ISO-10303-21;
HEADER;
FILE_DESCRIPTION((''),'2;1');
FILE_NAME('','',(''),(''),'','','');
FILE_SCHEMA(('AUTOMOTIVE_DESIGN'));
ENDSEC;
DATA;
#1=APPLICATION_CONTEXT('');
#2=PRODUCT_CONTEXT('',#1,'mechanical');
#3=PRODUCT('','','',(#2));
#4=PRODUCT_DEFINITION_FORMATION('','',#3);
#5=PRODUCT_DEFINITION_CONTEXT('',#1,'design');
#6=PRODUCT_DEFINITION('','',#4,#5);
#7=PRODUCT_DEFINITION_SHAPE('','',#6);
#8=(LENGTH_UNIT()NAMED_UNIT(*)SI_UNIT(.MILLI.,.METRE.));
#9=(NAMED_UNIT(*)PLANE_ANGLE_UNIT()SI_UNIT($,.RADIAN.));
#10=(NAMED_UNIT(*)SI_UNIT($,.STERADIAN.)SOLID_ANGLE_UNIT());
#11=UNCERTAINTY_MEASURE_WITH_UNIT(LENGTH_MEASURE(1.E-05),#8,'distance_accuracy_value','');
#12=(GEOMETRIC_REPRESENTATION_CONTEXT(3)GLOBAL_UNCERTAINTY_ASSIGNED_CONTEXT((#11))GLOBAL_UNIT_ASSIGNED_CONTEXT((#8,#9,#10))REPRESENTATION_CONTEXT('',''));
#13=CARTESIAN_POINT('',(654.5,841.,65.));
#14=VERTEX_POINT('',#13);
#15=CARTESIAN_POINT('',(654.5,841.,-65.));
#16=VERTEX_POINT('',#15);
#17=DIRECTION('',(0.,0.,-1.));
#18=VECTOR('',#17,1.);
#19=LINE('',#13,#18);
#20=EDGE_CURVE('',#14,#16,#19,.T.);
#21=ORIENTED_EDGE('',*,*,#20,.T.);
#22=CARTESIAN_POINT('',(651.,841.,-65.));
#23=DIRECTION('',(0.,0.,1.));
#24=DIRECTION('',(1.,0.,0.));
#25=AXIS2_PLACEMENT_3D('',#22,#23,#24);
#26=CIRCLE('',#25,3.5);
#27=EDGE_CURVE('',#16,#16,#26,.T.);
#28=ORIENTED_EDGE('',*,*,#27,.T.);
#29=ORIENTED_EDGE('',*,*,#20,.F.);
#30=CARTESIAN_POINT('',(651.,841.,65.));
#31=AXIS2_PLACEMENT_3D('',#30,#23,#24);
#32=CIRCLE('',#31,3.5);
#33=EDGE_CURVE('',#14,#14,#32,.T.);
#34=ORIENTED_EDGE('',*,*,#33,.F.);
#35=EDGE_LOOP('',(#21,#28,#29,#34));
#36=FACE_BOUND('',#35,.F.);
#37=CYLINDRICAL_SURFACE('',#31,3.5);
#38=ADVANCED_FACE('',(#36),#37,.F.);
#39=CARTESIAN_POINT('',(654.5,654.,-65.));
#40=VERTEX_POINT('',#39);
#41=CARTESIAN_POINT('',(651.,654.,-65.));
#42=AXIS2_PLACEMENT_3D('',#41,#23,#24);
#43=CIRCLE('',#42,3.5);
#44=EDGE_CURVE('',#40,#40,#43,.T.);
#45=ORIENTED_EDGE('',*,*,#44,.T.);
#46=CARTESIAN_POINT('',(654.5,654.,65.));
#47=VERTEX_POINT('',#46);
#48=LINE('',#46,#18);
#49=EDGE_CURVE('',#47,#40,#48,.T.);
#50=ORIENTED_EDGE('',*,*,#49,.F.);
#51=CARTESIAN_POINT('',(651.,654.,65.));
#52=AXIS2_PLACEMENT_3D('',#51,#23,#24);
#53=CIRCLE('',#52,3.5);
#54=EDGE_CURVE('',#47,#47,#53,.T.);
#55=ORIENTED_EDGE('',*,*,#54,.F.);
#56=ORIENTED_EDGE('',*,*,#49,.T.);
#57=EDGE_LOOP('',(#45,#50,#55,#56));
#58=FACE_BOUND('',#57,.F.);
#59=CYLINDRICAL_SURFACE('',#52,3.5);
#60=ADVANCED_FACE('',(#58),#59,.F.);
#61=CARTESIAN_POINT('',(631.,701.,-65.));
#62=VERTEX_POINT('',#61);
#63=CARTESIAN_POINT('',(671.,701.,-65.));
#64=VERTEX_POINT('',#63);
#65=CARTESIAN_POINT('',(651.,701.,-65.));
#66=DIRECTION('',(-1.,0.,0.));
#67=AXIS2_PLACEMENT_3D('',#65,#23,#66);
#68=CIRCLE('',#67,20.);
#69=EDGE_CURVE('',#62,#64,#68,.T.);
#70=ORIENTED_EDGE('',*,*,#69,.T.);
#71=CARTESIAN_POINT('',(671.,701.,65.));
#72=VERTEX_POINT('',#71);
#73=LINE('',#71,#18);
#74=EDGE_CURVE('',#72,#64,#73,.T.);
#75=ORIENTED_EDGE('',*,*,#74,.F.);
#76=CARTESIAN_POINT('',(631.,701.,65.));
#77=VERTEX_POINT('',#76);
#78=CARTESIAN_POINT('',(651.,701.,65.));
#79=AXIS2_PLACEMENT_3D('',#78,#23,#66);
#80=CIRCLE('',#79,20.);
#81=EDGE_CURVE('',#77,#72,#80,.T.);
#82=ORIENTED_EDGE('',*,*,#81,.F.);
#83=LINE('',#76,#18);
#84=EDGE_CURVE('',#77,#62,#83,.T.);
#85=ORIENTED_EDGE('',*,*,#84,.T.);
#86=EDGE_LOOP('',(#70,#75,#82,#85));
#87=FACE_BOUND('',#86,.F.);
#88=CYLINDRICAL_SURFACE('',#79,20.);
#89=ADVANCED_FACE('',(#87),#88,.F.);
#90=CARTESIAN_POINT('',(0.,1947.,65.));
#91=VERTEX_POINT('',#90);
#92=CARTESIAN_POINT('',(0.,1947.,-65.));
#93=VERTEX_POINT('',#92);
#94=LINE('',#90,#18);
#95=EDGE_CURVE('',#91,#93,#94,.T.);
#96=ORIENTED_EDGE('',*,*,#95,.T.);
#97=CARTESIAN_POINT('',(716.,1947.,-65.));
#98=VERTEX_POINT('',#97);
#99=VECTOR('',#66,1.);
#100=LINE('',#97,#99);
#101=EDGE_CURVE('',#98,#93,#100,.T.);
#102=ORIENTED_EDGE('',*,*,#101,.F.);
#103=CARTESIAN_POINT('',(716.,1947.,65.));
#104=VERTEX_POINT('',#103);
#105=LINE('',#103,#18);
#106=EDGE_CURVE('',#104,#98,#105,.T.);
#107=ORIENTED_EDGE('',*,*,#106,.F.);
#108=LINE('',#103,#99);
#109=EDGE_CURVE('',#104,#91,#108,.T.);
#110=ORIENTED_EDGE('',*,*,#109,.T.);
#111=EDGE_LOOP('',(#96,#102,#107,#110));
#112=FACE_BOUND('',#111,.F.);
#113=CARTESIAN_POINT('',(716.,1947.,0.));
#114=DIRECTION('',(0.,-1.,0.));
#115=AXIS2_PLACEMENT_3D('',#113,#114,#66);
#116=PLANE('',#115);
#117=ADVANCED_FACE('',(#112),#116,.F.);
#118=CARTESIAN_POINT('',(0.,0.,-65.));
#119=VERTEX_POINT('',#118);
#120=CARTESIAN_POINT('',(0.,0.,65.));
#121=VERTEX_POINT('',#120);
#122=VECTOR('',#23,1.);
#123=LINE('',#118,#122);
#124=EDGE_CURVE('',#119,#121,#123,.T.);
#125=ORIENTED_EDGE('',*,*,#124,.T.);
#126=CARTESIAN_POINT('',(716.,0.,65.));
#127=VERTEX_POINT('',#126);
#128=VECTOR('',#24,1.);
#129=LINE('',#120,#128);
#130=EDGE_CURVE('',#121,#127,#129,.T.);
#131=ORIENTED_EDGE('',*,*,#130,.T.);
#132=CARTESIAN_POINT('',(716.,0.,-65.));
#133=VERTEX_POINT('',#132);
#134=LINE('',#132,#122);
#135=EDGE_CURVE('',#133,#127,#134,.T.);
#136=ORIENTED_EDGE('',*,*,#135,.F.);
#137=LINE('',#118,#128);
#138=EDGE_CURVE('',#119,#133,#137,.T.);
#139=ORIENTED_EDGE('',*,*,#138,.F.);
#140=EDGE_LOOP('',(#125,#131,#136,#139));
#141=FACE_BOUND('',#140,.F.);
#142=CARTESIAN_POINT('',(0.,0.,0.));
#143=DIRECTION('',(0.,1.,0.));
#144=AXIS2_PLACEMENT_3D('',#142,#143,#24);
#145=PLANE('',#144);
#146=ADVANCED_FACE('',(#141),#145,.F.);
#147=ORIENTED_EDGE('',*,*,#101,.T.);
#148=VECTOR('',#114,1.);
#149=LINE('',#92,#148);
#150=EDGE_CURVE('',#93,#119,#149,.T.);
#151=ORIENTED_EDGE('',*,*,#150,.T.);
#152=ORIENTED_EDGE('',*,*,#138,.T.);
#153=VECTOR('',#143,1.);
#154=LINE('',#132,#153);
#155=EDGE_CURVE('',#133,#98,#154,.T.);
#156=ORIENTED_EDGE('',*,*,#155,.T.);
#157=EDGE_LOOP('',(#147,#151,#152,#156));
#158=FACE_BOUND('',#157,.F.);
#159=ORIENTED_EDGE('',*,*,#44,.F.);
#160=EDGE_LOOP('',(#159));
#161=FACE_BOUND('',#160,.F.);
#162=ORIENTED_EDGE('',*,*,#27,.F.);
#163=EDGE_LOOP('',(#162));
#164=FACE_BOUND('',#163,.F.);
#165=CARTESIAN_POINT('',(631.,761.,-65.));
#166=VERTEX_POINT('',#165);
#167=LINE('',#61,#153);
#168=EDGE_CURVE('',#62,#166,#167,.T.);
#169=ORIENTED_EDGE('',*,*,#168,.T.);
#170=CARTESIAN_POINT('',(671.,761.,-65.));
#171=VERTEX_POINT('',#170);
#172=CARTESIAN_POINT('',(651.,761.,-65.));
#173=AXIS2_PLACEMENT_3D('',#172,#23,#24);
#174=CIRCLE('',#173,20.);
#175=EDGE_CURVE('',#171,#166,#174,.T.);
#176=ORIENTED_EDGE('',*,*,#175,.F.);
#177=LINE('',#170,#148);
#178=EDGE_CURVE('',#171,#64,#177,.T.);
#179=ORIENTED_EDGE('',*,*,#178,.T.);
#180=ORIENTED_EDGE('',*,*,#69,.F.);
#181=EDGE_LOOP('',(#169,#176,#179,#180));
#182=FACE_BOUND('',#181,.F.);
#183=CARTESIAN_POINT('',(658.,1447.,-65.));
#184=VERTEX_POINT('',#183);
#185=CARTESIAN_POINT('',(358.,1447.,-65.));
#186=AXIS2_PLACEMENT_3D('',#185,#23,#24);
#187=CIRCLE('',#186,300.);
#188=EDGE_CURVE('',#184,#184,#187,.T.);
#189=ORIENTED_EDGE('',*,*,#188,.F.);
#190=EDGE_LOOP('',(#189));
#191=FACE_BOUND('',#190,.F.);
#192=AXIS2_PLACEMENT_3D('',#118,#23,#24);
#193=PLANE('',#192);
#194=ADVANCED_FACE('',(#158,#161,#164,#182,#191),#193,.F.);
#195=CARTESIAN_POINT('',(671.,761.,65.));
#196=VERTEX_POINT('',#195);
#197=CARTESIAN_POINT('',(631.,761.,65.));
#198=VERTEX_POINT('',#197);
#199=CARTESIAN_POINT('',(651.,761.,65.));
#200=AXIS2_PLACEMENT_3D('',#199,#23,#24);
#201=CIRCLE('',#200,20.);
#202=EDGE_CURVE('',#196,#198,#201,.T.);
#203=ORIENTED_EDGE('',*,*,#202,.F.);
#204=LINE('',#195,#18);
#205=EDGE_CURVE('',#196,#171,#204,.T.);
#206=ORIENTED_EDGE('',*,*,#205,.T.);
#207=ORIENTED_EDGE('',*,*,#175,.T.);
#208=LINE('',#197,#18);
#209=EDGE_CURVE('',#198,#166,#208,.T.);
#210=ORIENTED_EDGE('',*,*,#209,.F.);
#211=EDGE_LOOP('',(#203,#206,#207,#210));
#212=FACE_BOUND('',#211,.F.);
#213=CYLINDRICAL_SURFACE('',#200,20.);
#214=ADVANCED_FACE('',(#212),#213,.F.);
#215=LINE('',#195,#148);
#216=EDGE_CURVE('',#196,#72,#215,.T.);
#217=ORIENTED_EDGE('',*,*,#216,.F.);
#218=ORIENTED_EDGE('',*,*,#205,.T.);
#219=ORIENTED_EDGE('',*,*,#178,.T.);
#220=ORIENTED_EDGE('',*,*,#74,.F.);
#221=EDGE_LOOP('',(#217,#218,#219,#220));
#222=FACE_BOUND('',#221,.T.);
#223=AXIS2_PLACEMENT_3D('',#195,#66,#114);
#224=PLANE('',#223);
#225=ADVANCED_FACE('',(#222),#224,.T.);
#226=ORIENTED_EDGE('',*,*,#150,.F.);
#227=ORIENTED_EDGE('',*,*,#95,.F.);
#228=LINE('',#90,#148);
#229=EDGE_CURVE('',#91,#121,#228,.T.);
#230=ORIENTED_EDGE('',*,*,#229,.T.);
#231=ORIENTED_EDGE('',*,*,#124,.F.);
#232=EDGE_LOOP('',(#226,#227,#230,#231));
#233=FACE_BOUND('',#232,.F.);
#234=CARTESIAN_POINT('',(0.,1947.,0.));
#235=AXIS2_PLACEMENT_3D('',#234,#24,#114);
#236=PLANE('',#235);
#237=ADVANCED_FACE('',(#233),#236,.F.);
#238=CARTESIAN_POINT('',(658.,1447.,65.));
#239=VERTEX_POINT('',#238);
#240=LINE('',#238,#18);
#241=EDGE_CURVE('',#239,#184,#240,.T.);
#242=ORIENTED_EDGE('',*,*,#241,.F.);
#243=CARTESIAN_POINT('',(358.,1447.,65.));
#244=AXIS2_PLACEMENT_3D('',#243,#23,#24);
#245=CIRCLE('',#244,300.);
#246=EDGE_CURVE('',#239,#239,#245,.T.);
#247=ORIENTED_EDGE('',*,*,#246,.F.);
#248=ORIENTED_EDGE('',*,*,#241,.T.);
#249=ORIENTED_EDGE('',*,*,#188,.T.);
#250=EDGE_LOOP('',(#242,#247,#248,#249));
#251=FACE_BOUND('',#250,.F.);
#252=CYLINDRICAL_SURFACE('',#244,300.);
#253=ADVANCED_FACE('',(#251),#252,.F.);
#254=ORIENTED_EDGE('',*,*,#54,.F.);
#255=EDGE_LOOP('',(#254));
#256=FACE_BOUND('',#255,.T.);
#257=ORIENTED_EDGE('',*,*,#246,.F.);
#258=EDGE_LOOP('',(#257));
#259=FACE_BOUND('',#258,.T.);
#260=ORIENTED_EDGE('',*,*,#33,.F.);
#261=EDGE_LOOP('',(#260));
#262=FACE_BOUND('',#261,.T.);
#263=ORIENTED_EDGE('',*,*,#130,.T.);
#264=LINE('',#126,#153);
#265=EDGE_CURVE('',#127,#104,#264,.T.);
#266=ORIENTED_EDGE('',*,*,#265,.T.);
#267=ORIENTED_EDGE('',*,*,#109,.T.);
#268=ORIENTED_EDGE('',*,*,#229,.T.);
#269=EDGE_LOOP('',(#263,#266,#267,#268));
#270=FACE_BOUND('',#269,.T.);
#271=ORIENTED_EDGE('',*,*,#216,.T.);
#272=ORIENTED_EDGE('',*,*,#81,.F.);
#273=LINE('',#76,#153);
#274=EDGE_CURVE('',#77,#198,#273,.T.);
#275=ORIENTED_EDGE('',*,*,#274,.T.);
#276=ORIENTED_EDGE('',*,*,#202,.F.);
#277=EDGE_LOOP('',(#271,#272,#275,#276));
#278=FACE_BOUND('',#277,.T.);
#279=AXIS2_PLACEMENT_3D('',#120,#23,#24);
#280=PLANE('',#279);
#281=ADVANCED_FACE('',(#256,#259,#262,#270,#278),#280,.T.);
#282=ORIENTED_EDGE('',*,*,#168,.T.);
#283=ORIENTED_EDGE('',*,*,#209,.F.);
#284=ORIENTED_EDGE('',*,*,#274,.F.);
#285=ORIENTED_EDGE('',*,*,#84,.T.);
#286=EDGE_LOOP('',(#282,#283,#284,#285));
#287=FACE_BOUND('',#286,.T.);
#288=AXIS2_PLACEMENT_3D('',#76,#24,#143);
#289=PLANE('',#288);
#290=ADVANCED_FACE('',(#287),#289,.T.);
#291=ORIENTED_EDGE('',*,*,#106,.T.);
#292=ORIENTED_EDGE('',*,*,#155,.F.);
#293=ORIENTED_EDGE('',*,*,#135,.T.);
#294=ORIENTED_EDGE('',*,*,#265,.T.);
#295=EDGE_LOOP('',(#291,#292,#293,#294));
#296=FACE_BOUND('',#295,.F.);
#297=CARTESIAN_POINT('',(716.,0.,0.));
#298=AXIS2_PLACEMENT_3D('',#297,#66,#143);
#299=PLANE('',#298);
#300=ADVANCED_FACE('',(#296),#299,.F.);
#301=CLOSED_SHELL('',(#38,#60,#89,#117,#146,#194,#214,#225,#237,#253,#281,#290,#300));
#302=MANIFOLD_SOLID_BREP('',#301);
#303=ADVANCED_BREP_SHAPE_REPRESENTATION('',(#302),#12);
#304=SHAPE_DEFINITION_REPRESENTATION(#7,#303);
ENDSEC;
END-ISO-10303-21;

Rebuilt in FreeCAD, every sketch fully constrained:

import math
import FreeCAD as App
import Part
import Sketcher

V = App.Vector
Q = App.Units.Quantity


def add_polygon(sketch, points):
    """Adds a closed chain of lines whose ends are joined by coincident constraints."""
    first, n = sketch.GeometryCount, len(points)
    for a, b in zip(points, points[1:] + points[:1]):
        sketch.addGeometry(Part.LineSegment(App.Vector(*a, 0), App.Vector(*b, 0)), False)
    for i in range(n):
        sketch.addConstraint(Sketcher.Constraint("Coincident", first + i, 2, first + (i + 1) % n, 1))

doc = App.newDocument("Part")
body = doc.addObject("PartDesign::Body", "Body")

# Sketch on XY plane
sketch1 = body.newObject("Sketcher::SketchObject", "Sketch")
sketch1.AttachmentSupport = (doc.getObject("XY_Plane"), [""])
sketch1.MapMode = "FlatFace"
add_polygon(sketch1, [(0, 1947), (0, 0), (716, 0), (716, 1947)])  # lines 0-3
sketch1.addConstraint([
    Sketcher.Constraint("Vertical", 0),
    Sketcher.Constraint("Horizontal", 1),
    Sketcher.Constraint("Vertical", 2),
    Sketcher.Constraint("Horizontal", 3),
    Sketcher.Constraint("Coincident", 0, 2, -1, 1),
    Sketcher.Constraint("DistanceX", 1, 1, 1, 2, Q("716 mm")),
    Sketcher.Constraint("DistanceY", 0, 2, 0, 1, Q("1947 mm")),
])
pad1 = body.newObject("PartDesign::Pad", "Pad")
pad1.Profile = sketch1
pad1.Length = 130
pad1.Midplane = True

# Sketch on XY plane
sketch2 = body.newObject("Sketcher::SketchObject", "Sketch001")
sketch2.AttachmentSupport = (doc.getObject("XY_Plane"), [""])
sketch2.MapMode = "FlatFace"
sketch2.AttachmentOffset = App.Placement(V(0, 0, 65), App.Rotation())
sketch2.addGeometry(Part.Circle(V(358, 1447, 0), V(0, 0, 1), 300), False)
sketch2.addConstraint([
    Sketcher.Constraint("Diameter", 0, Q("600 mm")),
    Sketcher.Constraint("DistanceX", -1, 1, 0, 3, Q("358 mm")),
    Sketcher.Constraint("DistanceY", -1, 1, 0, 3, Q("1447 mm")),
])
pocket1 = body.newObject("PartDesign::Pocket", "Pocket")
pocket1.Profile = sketch2
pocket1.Length = 130

# Sketch on XY plane
sketch3 = body.newObject("Sketcher::SketchObject", "Sketch002")
sketch3.AttachmentSupport = (doc.getObject("XY_Plane"), [""])
sketch3.MapMode = "FlatFace"
sketch3.AttachmentOffset = App.Placement(V(0, 0, 65), App.Rotation())
sketch3.addGeometry([
    Part.LineSegment(V(671, 701, 0), V(671, 761, 0)),  # 0
    Part.ArcOfCircle(Part.Circle(V(651, 761, 0), V(0, 0, 1), 20), math.radians(0), math.radians(180)),  # 1
    Part.LineSegment(V(631, 761, 0), V(631, 701, 0)),  # 2
    Part.ArcOfCircle(Part.Circle(V(651, 701, 0), V(0, 0, 1), 20), math.radians(180), math.radians(360)),  # 3
    Part.Circle(V(651, 841, 0), V(0, 0, 1), 3.5),  # 4
    Part.Circle(V(651, 654, 0), V(0, 0, 1), 3.5),  # 5
], False)
sketch3.addConstraint([
    Sketcher.Constraint("Tangent", 0, 2, 1, 1),
    Sketcher.Constraint("Tangent", 1, 2, 2, 1),
    Sketcher.Constraint("Tangent", 2, 2, 3, 1),
    Sketcher.Constraint("Tangent", 3, 2, 0, 1),
    Sketcher.Constraint("Vertical", 0),
    Sketcher.Constraint("Vertical", 2),
    Sketcher.Constraint("Equal", 4, 5),
    Sketcher.Constraint("Vertical", 3, 3, 4, 3),
    Sketcher.Constraint("Vertical", 4, 3, 5, 3),
    Sketcher.Constraint("Diameter", 4, Q("7 mm")),
    Sketcher.Constraint("Radius", 1, Q("20 mm")),
    Sketcher.Constraint("DistanceY", 0, 1, 0, 2, Q("60 mm")),
    Sketcher.Constraint("DistanceY", 5, 3, 4, 3, Q("187 mm")),
    Sketcher.Constraint("DistanceX", -1, 1, 1, 3, Q("651 mm")),
    Sketcher.Constraint("DistanceY", -1, 1, 1, 3, Q("761 mm")),
    Sketcher.Constraint("DistanceY", -1, 1, 4, 3, Q("841 mm")),
])
pocket2 = body.newObject("PartDesign::Pocket", "Pocket001")
pocket2.Profile = sketch3
pocket2.Length = 130

doc.recompute()
